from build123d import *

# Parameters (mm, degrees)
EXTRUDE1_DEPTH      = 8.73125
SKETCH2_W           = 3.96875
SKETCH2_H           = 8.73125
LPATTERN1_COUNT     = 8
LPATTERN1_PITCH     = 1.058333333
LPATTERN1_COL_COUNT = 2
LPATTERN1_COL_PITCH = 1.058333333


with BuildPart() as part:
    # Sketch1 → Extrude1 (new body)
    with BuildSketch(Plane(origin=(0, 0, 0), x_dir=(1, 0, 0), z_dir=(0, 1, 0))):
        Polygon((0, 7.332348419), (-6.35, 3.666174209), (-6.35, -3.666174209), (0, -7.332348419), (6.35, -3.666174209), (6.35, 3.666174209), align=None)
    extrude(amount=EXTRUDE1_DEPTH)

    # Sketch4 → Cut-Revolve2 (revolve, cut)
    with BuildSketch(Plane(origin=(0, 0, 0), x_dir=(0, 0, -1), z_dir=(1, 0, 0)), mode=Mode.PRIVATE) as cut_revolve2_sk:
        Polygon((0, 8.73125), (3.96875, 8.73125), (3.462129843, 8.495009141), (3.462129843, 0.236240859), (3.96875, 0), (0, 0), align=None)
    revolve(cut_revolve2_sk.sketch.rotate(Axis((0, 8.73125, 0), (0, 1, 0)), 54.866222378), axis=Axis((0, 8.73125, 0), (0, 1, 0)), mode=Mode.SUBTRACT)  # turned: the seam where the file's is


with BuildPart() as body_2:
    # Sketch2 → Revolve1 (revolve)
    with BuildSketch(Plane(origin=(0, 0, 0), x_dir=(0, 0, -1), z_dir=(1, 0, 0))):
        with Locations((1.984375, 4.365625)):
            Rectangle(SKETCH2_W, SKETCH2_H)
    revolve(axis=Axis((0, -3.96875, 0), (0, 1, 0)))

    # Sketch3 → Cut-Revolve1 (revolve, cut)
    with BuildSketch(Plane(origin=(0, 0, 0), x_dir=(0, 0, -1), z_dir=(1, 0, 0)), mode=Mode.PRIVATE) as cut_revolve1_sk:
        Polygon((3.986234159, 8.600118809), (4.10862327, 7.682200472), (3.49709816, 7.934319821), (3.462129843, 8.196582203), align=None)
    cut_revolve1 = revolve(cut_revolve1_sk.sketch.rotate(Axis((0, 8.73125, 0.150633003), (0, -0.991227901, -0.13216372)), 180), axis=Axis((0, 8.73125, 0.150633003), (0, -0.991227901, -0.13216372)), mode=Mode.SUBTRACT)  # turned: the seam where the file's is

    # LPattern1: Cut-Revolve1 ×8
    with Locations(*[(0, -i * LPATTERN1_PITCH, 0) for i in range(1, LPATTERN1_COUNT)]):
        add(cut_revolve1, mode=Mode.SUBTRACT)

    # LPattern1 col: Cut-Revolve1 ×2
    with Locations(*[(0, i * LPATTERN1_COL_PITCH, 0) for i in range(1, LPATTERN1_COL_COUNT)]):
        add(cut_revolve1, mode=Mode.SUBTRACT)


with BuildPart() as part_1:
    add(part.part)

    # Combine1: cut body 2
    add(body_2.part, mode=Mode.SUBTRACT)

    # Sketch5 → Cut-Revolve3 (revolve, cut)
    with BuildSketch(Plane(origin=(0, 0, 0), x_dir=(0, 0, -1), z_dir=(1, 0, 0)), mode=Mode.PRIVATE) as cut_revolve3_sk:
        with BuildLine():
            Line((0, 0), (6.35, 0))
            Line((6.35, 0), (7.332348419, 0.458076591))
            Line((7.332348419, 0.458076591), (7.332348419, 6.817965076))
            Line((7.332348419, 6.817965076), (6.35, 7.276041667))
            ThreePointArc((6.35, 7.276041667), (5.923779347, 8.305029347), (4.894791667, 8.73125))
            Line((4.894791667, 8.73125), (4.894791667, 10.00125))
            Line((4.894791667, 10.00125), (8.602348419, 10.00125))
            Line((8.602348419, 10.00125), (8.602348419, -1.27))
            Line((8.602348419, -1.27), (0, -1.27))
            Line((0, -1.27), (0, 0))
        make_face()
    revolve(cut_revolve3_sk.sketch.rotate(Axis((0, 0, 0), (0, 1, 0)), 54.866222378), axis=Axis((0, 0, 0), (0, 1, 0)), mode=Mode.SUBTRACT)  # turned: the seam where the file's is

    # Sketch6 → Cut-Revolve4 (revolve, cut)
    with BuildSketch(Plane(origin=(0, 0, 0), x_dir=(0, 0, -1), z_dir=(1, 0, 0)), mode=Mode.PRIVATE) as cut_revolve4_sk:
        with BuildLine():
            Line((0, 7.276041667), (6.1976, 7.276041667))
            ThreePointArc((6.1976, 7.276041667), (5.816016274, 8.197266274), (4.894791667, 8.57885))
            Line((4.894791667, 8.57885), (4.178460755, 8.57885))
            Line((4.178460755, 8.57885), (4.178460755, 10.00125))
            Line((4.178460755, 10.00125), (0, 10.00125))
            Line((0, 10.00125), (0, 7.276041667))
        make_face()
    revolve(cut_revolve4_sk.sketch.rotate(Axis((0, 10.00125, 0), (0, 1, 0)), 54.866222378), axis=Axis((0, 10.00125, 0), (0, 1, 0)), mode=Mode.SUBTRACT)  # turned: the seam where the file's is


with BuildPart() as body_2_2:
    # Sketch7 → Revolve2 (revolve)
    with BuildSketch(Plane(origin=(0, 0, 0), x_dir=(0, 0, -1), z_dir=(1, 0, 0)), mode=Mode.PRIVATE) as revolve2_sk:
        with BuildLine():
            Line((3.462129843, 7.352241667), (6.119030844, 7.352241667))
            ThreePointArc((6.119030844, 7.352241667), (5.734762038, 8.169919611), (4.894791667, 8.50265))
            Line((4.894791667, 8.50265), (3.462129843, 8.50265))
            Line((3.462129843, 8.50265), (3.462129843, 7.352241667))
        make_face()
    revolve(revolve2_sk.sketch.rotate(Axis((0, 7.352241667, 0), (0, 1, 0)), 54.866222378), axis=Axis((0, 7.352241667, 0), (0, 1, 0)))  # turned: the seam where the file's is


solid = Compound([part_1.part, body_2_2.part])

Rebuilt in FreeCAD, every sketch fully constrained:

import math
import FreeCAD as App
import Part
import Sketcher
Q = App.Units.Quantity

doc = App.newDocument("Part")
body = doc.addObject("PartDesign::Body", "Body")

sketch1 = body.newObject("Sketcher::SketchObject", "Sketch")
sketch1.AttachmentSupport = (doc.getObject("XZ_Plane"), [""])
sketch1.MapMode = "FlatFace"
sketch1.addGeometry(Part.LineSegment(App.Vector(0, -7, 0), App.Vector(-6, -4, 0)), False)
sketch1.addGeometry(Part.LineSegment(App.Vector(-6, -4, 0), App.Vector(-6, 4, 0)), False)
sketch1.addGeometry(Part.LineSegment(App.Vector(-6, 4, 0), App.Vector(0, 7, 0)), False)
sketch1.addGeometry(Part.LineSegment(App.Vector(0, 7, 0), App.Vector(6, 4, 0)), False)
sketch1.addGeometry(Part.LineSegment(App.Vector(6, 4, 0), App.Vector(6, -4, 0)), False)
sketch1.addGeometry(Part.LineSegment(App.Vector(6, -4, 0), App.Vector(0, -7, 0)), False)
sketch1.addConstraint(Sketcher.Constraint("Coincident", 0, 2, 1, 1))
sketch1.addConstraint(Sketcher.Constraint("Coincident", 1, 2, 2, 1))
sketch1.addConstraint(Sketcher.Constraint("Coincident", 2, 2, 3, 1))
sketch1.addConstraint(Sketcher.Constraint("Coincident", 3, 2, 4, 1))
sketch1.addConstraint(Sketcher.Constraint("Coincident", 4, 2, 5, 1))
sketch1.addConstraint(Sketcher.Constraint("Coincident", 5, 2, 0, 1))
sketch1.addConstraint(Sketcher.Constraint("Vertical", 1))
sketch1.addConstraint(Sketcher.Constraint("Vertical", 4))
sketch1.addConstraint(Sketcher.Constraint("Symmetric", 0, 2, 3, 2, -1, 1))
sketch1.addConstraint(Sketcher.Constraint("Symmetric", 2, 2, 5, 2, -1, 1))
sketch1.addConstraint(Sketcher.Constraint("PointOnObject", 2, 2, -2))
sketch1.addConstraint(Sketcher.Constraint("Parallel", 2, 5))
sketch1.addConstraint(Sketcher.Constraint("Horizontal", 1, 2, 3, 2))
sketch1.addConstraint(Sketcher.Constraint("Angle", 0, Q("150 deg")))
sketch1.addConstraint(Sketcher.Constraint("DistanceX", 1, 2, 3, 2, Q("0.5 in")))
sketch1.addConstraint(Sketcher.Constraint("DistanceY", 1, 1, 1, 2, Q("7.332348 mm")))
pad1 = body.newObject("PartDesign::Pad", "Pad")
pad1.Profile = sketch1
pad1.Length = Q("0.34375 in")
pad1.Reversed = True

sketch2 = body.newObject("Sketcher::SketchObject", "Sketch001")
sketch2.AttachmentSupport = (doc.getObject("YZ_Plane"), [""])
sketch2.MapMode = "FlatFace"
sketch2.addGeometry(Part.LineSegment(App.Vector(8.7, -4, 0), App.Vector(8.7, 0, 0)), False)
sketch2.addGeometry(Part.LineSegment(App.Vector(8.7, 0, 0), App.Vector(0, 0, 0)), False)
sketch2.addGeometry(Part.LineSegment(App.Vector(0, 0, 0), App.Vector(0, -4, 0)), False)
sketch2.addGeometry(Part.LineSegment(App.Vector(0, -4, 0), App.Vector(0.2, -3.5, 0)), False)
sketch2.addGeometry(Part.LineSegment(App.Vector(0.2, -3.5, 0), App.Vector(8.5, -3.5, 0)), False)
sketch2.addGeometry(Part.LineSegment(App.Vector(8.5, -3.5, 0), App.Vector(8.7, -4, 0)), False)
sketch2.addConstraint(Sketcher.Constraint("Coincident", 0, 2, 1, 1))
sketch2.addConstraint(Sketcher.Constraint("Coincident", 1, 2, 2, 1))
sketch2.addConstraint(Sketcher.Constraint("Coincident", 2, 2, 3, 1))
sketch2.addConstraint(Sketcher.Constraint("Coincident", 3, 2, 4, 1))
sketch2.addConstraint(Sketcher.Constraint("Coincident", 4, 2, 5, 1))
sketch2.addConstraint(Sketcher.Constraint("Coincident", 5, 2, 0, 1))
sketch2.addConstraint(Sketcher.Constraint("Vertical", 0))
sketch2.addConstraint(Sketcher.Constraint("Horizontal", 1))
sketch2.addConstraint(Sketcher.Constraint("Vertical", 2))
sketch2.addConstraint(Sketcher.Constraint("Horizontal", 4))
sketch2.addConstraint(Sketcher.Constraint("Coincident", 1, 2, -1, 1))
sketch2.addConstraint(Sketcher.Constraint("Horizontal", 2, 2, 5, 2))
sketch2.addConstraint(Sketcher.Constraint("Equal", 3, 5))
sketch2.addConstraint(Sketcher.Constraint("Angle", 3, Q("65 deg")))
sketch2.addConstraint(Sketcher.Constraint("DistanceX", 1, 2, 1, 1, Q("0.34375 in")))
sketch2.addConstraint(Sketcher.Constraint("DistanceY", 0, 1, 0, 2, Q("0.15625 in")))
sketch2.addConstraint(Sketcher.Constraint("DistanceX", 4, 1, 4, 2, Q("8.258768 mm")))
groove = body.newObject("PartDesign::Groove", "Groove")
groove.Profile = sketch2
groove.ReferenceAxis = (sketch2, ["H_Axis"])
groove.Angle = 360
body2 = doc.addObject("PartDesign::Body", "Body001")

sketch3 = body2.newObject("Sketcher::SketchObject", "Sketch002")
sketch3.AttachmentSupport = (doc.getObject("YZ_Plane001"), [""])
sketch3.MapMode = "FlatFace"
sketch3.addGeometry(Part.LineSegment(App.Vector(8.7, 0, 0), App.Vector(0, 0, 0)), False)
sketch3.addGeometry(Part.LineSegment(App.Vector(0, 0, 0), App.Vector(0, -4, 0)), False)
sketch3.addGeometry(Part.LineSegment(App.Vector(0, -4, 0), App.Vector(8.7, -4, 0)), False)
sketch3.addGeometry(Part.LineSegment(App.Vector(8.7, -4, 0), App.Vector(8.7, 0, 0)), False)
sketch3.addConstraint(Sketcher.Constraint("Coincident", 0, 2, 1, 1))
sketch3.addConstraint(Sketcher.Constraint("Coincident", 1, 2, 2, 1))
sketch3.addConstraint(Sketcher.Constraint("Coincident", 2, 2, 3, 1))
sketch3.addConstraint(Sketcher.Constraint("Coincident", 3, 2, 0, 1))
sketch3.addConstraint(Sketcher.Constraint("Horizontal", 0))
sketch3.addConstraint(Sketcher.Constraint("Vertical", 1))
sketch3.addConstraint(Sketcher.Constraint("Horizontal", 2))
sketch3.addConstraint(Sketcher.Constraint("Vertical", 3))
sketch3.addConstraint(Sketcher.Constraint("Coincident", 0, 2, -1, 1))
sketch3.addConstraint(Sketcher.Constraint("DistanceX", 0, 2, 0, 1, Q("0.34375 in")))
sketch3.addConstraint(Sketcher.Constraint("DistanceY", 1, 2, 1, 1, Q("0.15625 in")))
revolution = body2.newObject("PartDesign::Revolution", "Revolution")
revolution.Profile = sketch3
revolution.ReferenceAxis = (sketch3, ["H_Axis"])
revolution.Angle = 360

sketch4 = body2.newObject("Sketcher::SketchObject", "Sketch003")
sketch4.AttachmentSupport = (doc.getObject("YZ_Plane001"), [""])
sketch4.MapMode = "FlatFace"
sketch4.addGeometry(Part.LineSegment(App.Vector(7.68, -4.11, 0), App.Vector(8.6, -3.99, 0)), False)
sketch4.addGeometry(Part.LineSegment(App.Vector(8.6, -3.99, 0), App.Vector(8.2, -3.46, 0)), False)
sketch4.addGeometry(Part.LineSegment(App.Vector(8.2, -3.46, 0), App.Vector(7.93, -3.5, 0)), False)
sketch4.addGeometry(Part.LineSegment(App.Vector(7.93, -3.5, 0), App.Vector(7.68, -4.11, 0)), False)
sketch4.addGeometry(Part.LineSegment(App.Vector(8.06, 0.06, 0), App.Vector(7.14, -0.06, 0)), True)
sketch4.addConstraint(Sketcher.Constraint("Coincident", 0, 2, 1, 1))
sketch4.addConstraint(Sketcher.Constraint("Coincident", 1, 2, 2, 1))
sketch4.addConstraint(Sketcher.Constraint("Coincident", 2, 2, 3, 1))
sketch4.addConstraint(Sketcher.Constraint("Coincident", 3, 2, 0, 1))
sketch4.addConstraint(Sketcher.Constraint("Parallel", 0, 2))
sketch4.addConstraint(Sketcher.Constraint("Parallel", 2, 4))
sketch4.addConstraint(Sketcher.Constraint("Equal", 1, 3))
sketch4.addConstraint(Sketcher.Constraint("Equal", 0, 4))
sketch4.addConstraint(Sketcher.Constraint("DistanceX", -1, 1, 1, 2, Q("0.3227001 in")))
sketch4.addConstraint(Sketcher.Constraint("DistanceY", 2, 2, -1, 1, Q("3.497098 mm")))
sketch4.addConstraint(Sketcher.Constraint("DistanceX", -1, 1, 3, 2, Q("7.6822 mm")))
sketch4.addConstraint(Sketcher.Constraint("DistanceX", 2, 2, 0, 2, Q("0.665799 mm")))
sketch4.addConstraint(Sketcher.Constraint("Distance", 0, Q("0.926042 mm")))
sketch4.addConstraint(Sketcher.Constraint("Distance", 1, Q("0.661458 mm")))
sketch4.addConstraint(Sketcher.Constraint("DistanceX", -1, 1, 4, 1, Q("8.060462 mm")))
sketch4.addConstraint(Sketcher.Constraint("DistanceY", 0, 2, 4, 1, Q("4.047429 mm")))
groove2 = body2.newObject("PartDesign::Groove", "Groove001")
groove2.Profile = sketch4
groove2.ReferenceAxis = (sketch4, ["Axis0"])
groove2.Angle = 360
doc.recompute()

linearpattern = body2.newObject("PartDesign::LinearPattern", "LinearPattern")
linearpattern.Originals = [groove2]
linearpattern.Direction = (doc.getObject("Y_Axis001"), [""])
linearpattern.Mode = "offset"
linearpattern.Offset = 1.058333
linearpattern.Occurrences = 8
linearpattern.Reversed = True
body2.Tip = linearpattern
doc.recompute()

linearpattern2 = body2.newObject("PartDesign::LinearPattern", "LinearPattern001")
linearpattern2.Originals = [groove2]
linearpattern2.Direction = (doc.getObject("Y_Axis001"), [""])
linearpattern2.Mode = "offset"
linearpattern2.Offset = 1.058333
linearpattern2.Occurrences = 2
body2.Tip = linearpattern2
doc.recompute()

boolean = body.newObject("PartDesign::Boolean", "Boolean")
boolean.Type = "Cut"
boolean.addObjects([body2])

sketch5 = body.newObject("Sketcher::SketchObject", "Sketch004")
sketch5.AttachmentSupport = (doc.getObject("YZ_Plane"), [""])
sketch5.MapMode = "FlatFace"
sketch5.addGeometry(Part.LineSegment(App.Vector(0, -6.3, 0), App.Vector(0, 0, 0)), False)
sketch5.addGeometry(Part.LineSegment(App.Vector(0, 0, 0), App.Vector(-1.3, 0, 0)), False)
sketch5.addGeometry(Part.LineSegment(App.Vector(-1.3, 0, 0), App.Vector(-1.3, -8.6, 0)), False)
sketch5.addGeometry(Part.LineSegment(App.Vector(-1.3, -8.6, 0), App.Vector(10, -8.6, 0)), False)
sketch5.addGeometry(Part.LineSegment(App.Vector(10, -8.6, 0), App.Vector(10, -4.9, 0)), False)
sketch5.addGeometry(Part.LineSegment(App.Vector(10, -4.9, 0), App.Vector(8.7, -4.9, 0)), False)
sketch5.addGeometry(Part.ArcOfCircle(Part.Circle(App.Vector(7.3, -4.9, 0), App.Vector(0, 0, 1), 1.5), math.radians(-90), math.radians(0)), False)
sketch5.addGeometry(Part.LineSegment(App.Vector(7.3, -6.3, 0), App.Vector(6.8, -7.3, 0)), False)
sketch5.addGeometry(Part.LineSegment(App.Vector(6.8, -7.3, 0), App.Vector(0.5, -7.3, 0)), False)
sketch5.addGeometry(Part.LineSegment(App.Vector(0.5, -7.3, 0), App.Vector(0, -6.3, 0)), False)
sketch5.addConstraint(Sketcher.Constraint("Coincident", 0, 2, 1, 1))
sketch5.addConstraint(Sketcher.Constraint("Coincident", 1, 2, 2, 1))
sketch5.addConstraint(Sketcher.Constraint("Coincident", 2, 2, 3, 1))
sketch5.addConstraint(Sketcher.Constraint("Coincident", 3, 2, 4, 1))
sketch5.addConstraint(Sketcher.Constraint("Coincident", 4, 2, 5, 1))
sketch5.addConstraint(Sketcher.Constraint("Coincident", 5, 2, 6, 2))
sketch5.addConstraint(Sketcher.Constraint("Coincident", 6, 1, 7, 1))
sketch5.addConstraint(Sketcher.Constraint("Coincident", 7, 2, 8, 1))
sketch5.addConstraint(Sketcher.Constraint("Coincident", 8, 2, 9, 1))
sketch5.addConstraint(Sketcher.Constraint("Coincident", 9, 2, 0, 1))
sketch5.addConstraint(Sketcher.Constraint("Vertical", 0))
sketch5.addConstraint(Sketcher.Constraint("Horizontal", 1))
sketch5.addConstraint(Sketcher.Constraint("Vertical", 2))
sketch5.addConstraint(Sketcher.Constraint("Horizontal", 3))
sketch5.addConstraint(Sketcher.Constraint("Vertical", 4))
sketch5.addConstraint(Sketcher.Constraint("Horizontal", 5))
sketch5.addConstraint(Sketcher.Constraint("Horizontal", 8))
sketch5.addConstraint(Sketcher.Constraint("Coincident", 0, 2, -1, 1))
sketch5.addConstraint(Sketcher.Constraint("Horizontal", 6, 3, 4, 2))
sketch5.addConstraint(Sketcher.Constraint("Horizontal", 6, 1, 9, 2))
sketch5.addConstraint(Sketcher.Constraint("Equal", 1, 5))
sketch5.addConstraint(Sketcher.Constraint("Equal", 7, 9))
sketch5.addConstraint(Sketcher.Constraint("Angle", 7, Q("-115 deg")))
sketch5.addConstraint(Sketcher.Constraint("DistanceX", 1, 2, 1, 1, Q("0.05 in")))
sketch5.addConstraint(Sketcher.Constraint("DistanceY", 0, 1, 0, 2, Q("0.25 in")))
sketch5.addConstraint(Sketcher.Constraint("DistanceY", 3, 2, 7, 2, Q("0.05 in")))
sketch5.addConstraint(Sketcher.Constraint("DistanceX", -1, 1, 5, 2, Q("0.34375 in")))
sketch5.addConstraint(Sketcher.Constraint("Radius", 6, Q("1.455208 mm")))
sketch5.addConstraint(Sketcher.Constraint("Distance", 7, Q("1.083902 mm")))
sketch5.addConstraint(Sketcher.Constraint("DistanceX", 8, 2, 8, 1, Q("6.359888 mm")))
groove3 = body.newObject("PartDesign::Groove", "Groove002")
groove3.Profile = sketch5
groove3.ReferenceAxis = (sketch5, ["H_Axis"])
groove3.Angle = 360

sketch6 = body.newObject("Sketcher::SketchObject", "Sketch005")
sketch6.AttachmentSupport = (doc.getObject("YZ_Plane"), [""])
sketch6.MapMode = "FlatFace"
sketch6.addGeometry(Part.LineSegment(App.Vector(7.3, 0, 0), App.Vector(7.3, -6.2, 0)), False)
sketch6.addGeometry(Part.ArcOfCircle(Part.Circle(App.Vector(7.3, -4.9, 0), App.Vector(0, 0, 1), 1.3), math.radians(-90), math.radians(0)), False)
sketch6.addGeometry(Part.LineSegment(App.Vector(8.6, -4.9, 0), App.Vector(8.6, -4.2, 0)), False)
sketch6.addGeometry(Part.LineSegment(App.Vector(8.6, -4.2, 0), App.Vector(10, -4.2, 0)), False)
sketch6.addGeometry(Part.LineSegment(App.Vector(10, -4.2, 0), App.Vector(10, 0, 0)), False)
sketch6.addGeometry(Part.LineSegment(App.Vector(10, 0, 0), App.Vector(7.3, 0, 0)), False)
sketch6.addConstraint(Sketcher.Constraint("Coincident", 0, 2, 1, 1))
sketch6.addConstraint(Sketcher.Constraint("Tangent", 1, 2, 2, 1))
sketch6.addConstraint(Sketcher.Constraint("Coincident", 2, 2, 3, 1))
sketch6.addConstraint(Sketcher.Constraint("Coincident", 3, 2, 4, 1))
sketch6.addConstraint(Sketcher.Constraint("Coincident", 4, 2, 5, 1))
sketch6.addConstraint(Sketcher.Constraint("Coincident", 5, 2, 0, 1))
sketch6.addConstraint(Sketcher.Constraint("Vertical", 0))
sketch6.addConstraint(Sketcher.Constraint("Vertical", 2))
sketch6.addConstraint(Sketcher.Constraint("Horizontal", 3))
sketch6.addConstraint(Sketcher.Constraint("Vertical", 4))
sketch6.addConstraint(Sketcher.Constraint("Horizontal", 5))
sketch6.addConstraint(Sketcher.Constraint("PointOnObject", 4, 2, -1))
sketch6.addConstraint(Sketcher.Constraint("Vertical", 1, 3, 0, 2))
sketch6.addConstraint(Sketcher.Constraint("DistanceX", 3, 1, 3, 2, Q("0.056 in")))
sketch6.addConstraint(Sketcher.Constraint("DistanceY", 0, 2, 0, 1, Q("0.244 in")))
sketch6.addConstraint(Sketcher.Constraint("Radius", 1, Q("1.302808 mm")))
sketch6.addConstraint(Sketcher.Constraint("DistanceY", 2, 1, 2, 2, Q("0.716331 mm")))
sketch6.addConstraint(Sketcher.Constraint("DistanceX", -1, 1, 1, 3, Q("7.276042 mm")))
groove4 = body.newObject("PartDesign::Groove", "Groove003")
groove4.Profile = sketch6
groove4.ReferenceAxis = (sketch6, ["H_Axis"])
groove4.Angle = 360
body3 = doc.addObject("PartDesign::Body", "Body002")

sketch7 = body3.newObject("Sketcher::SketchObject", "Sketch006")
sketch7.AttachmentSupport = (doc.getObject("YZ_Plane002"), [""])
sketch7.MapMode = "FlatFace"
sketch7.addGeometry(Part.LineSegment(App.Vector(7.4, -3.5, 0), App.Vector(7.4, -6.1, 0)), False)
sketch7.addGeometry(Part.ArcOfCircle(Part.Circle(App.Vector(7.3, -4.9, 0), App.Vector(0, 0, 1), 1.2), math.radians(-86), math.radians(0)), False)
sketch7.addGeometry(Part.LineSegment(App.Vector(8.5, -4.9, 0), App.Vector(8.5, -3.5, 0)), False)
sketch7.addGeometry(Part.LineSegment(App.Vector(8.5, -3.5, 0), App.Vector(7.4, -3.5, 0)), False)
sketch7.addConstraint(Sketcher.Constraint("Coincident", 0, 2, 1, 1))
sketch7.addConstraint(Sketcher.Constraint("Tangent", 1, 2, 2, 1))
sketch7.addConstraint(Sketcher.Constraint("Coincident", 2, 2, 3, 1))
sketch7.addConstraint(Sketcher.Constraint("Coincident", 3, 2, 0, 1))
sketch7.addConstraint(Sketcher.Constraint("Vertical", 0))
sketch7.addConstraint(Sketcher.Constraint("Vertical", 2))
sketch7.addConstraint(Sketcher.Constraint("Horizontal", 3))
sketch7.addConstraint(Sketcher.Constraint("Radius", 1, Q("1.226608 mm")))
sketch7.addConstraint(Sketcher.Constraint("DistanceX", 1, 3, 0, 2, Q("0.003 in")))
sketch7.addConstraint(Sketcher.Constraint("DistanceY", 0, 2, 0, 1, Q("2.656901 mm")))
sketch7.addConstraint(Sketcher.Constraint("DistanceX", -1, 1, 1, 3, Q("7.276042 mm")))
sketch7.addConstraint(Sketcher.Constraint("DistanceY", 1, 3, -1, 1, Q("4.894792 mm")))
revolution2 = body3.newObject("PartDesign::Revolution", "Revolution001")
revolution2.Profile = sketch7
revolution2.ReferenceAxis = (sketch7, ["H_Axis"])
revolution2.Angle = 360

doc.recompute()
